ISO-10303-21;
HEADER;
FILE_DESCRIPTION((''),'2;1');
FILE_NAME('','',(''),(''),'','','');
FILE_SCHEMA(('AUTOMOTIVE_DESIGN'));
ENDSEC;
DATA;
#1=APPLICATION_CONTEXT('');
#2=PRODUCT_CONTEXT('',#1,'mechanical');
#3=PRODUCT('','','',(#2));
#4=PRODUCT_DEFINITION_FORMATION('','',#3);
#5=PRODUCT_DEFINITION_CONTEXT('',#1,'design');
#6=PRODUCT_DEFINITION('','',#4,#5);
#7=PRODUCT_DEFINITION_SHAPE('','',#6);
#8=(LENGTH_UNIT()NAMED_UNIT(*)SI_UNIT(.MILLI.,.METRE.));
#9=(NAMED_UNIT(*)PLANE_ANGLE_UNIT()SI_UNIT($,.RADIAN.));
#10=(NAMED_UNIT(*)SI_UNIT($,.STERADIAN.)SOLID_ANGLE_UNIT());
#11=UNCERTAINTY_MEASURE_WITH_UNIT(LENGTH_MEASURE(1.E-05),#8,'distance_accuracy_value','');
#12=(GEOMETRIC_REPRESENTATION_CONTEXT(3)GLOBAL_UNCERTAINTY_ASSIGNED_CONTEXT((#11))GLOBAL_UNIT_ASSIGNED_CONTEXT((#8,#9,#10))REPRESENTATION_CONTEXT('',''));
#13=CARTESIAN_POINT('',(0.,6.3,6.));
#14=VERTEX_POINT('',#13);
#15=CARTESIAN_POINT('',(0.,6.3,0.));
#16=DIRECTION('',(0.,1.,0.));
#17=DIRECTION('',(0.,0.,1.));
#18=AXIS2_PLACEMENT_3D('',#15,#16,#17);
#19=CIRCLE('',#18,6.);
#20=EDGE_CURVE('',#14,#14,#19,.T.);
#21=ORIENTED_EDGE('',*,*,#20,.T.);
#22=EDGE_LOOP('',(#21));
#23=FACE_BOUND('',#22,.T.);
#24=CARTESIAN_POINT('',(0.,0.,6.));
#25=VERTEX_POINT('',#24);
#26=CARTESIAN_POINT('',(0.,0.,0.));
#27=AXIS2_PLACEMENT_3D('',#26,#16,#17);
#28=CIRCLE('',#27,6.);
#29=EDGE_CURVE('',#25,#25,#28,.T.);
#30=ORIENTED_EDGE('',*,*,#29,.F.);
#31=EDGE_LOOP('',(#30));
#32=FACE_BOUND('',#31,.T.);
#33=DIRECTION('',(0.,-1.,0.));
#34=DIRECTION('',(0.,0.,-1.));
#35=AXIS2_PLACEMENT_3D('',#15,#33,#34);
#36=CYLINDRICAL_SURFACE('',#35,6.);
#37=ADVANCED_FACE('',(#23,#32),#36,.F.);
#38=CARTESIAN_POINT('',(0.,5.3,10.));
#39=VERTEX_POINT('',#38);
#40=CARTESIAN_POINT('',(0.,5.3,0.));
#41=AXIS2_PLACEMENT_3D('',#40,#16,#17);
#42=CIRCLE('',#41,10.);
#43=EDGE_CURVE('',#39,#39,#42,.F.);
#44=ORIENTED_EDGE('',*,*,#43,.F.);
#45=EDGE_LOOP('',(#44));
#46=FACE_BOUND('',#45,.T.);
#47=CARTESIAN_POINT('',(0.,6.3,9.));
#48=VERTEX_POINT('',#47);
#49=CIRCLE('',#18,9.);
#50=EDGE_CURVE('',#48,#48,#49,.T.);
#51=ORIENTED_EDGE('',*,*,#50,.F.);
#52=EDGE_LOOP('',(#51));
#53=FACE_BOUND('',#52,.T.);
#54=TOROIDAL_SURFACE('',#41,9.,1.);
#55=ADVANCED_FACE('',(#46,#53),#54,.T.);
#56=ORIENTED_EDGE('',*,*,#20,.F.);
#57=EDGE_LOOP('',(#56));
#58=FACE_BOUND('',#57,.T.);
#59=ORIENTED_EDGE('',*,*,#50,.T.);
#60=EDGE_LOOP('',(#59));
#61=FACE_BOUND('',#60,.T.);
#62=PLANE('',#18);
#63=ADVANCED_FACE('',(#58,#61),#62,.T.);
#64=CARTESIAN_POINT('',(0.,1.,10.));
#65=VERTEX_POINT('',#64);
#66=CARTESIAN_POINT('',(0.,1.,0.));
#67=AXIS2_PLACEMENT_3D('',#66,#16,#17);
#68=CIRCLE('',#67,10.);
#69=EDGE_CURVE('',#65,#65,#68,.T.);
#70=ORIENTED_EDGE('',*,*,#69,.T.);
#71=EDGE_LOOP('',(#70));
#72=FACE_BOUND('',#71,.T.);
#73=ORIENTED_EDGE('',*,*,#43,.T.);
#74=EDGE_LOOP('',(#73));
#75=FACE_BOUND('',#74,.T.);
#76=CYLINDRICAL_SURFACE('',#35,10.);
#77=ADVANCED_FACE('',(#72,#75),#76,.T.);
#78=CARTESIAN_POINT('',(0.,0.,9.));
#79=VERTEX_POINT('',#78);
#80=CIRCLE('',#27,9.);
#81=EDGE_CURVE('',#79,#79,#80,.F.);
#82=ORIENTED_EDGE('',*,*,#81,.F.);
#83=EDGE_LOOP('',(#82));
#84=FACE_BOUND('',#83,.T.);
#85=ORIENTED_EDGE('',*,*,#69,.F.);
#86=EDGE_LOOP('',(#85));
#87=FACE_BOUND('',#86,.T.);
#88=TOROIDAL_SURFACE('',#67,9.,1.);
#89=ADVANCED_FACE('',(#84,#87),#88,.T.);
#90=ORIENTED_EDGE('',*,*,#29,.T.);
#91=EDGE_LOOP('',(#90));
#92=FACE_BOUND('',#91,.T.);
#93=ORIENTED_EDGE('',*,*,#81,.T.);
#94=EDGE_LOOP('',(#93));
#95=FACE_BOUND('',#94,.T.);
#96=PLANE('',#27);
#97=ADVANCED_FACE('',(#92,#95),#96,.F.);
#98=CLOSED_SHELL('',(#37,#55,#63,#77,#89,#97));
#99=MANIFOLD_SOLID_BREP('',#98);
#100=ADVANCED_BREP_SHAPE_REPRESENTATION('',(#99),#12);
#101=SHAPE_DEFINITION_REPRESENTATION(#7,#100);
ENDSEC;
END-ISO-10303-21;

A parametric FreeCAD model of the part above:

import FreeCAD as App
import Part
import Sketcher
from FreeCAD import Vector


def edges_at(feature, points):
    """Names of the edges that pass closest to the given points."""
    edges = feature.Shape.Edges
    near = lambda p: min(range(len(edges)), key=lambda i: edges[i].distToShape(Part.Vertex(*p))[0])
    return sorted({f"Edge{near(p) + 1}" for p in points})

doc = App.newDocument("Part")
body = doc.addObject("PartDesign::Body", "Body")

sketch1 = body.newObject("Sketcher::SketchObject", "Sketch")
sketch1.AttachmentSupport = (doc.getObject("XZ_Plane"), [""])
sketch1.MapMode = "FlatFace"
sketch1.addGeometry(Part.Circle(Vector(0, 0, 0), Vector(0, 0, 1), 10), False)
sketch1.addGeometry(Part.Circle(Vector(0, 0, 0), Vector(0, 0, 1), 6), False)
sketch1.addConstraint(Sketcher.Constraint("Coincident", 0, 3, -1, 1))
sketch1.addConstraint(Sketcher.Constraint("Coincident", 1, 3, -1, 1))
sketch1.addConstraint(Sketcher.Constraint("Diameter", 0, 20.0))
sketch1.addConstraint(Sketcher.Constraint("Diameter", 1, 12.0))
pad1 = body.newObject("PartDesign::Pad", "Pad")
pad1.Profile = sketch1
pad1.Length = 6.3
pad1.Reversed = True
doc.recompute()

fillet = body.newObject("PartDesign::Fillet", "Fillet")
fillet.Base = (pad1, edges_at(pad1, [(-10, 0, 0), (-10, 6.3, 0)]))
fillet.Radius = 1

doc.recompute()
